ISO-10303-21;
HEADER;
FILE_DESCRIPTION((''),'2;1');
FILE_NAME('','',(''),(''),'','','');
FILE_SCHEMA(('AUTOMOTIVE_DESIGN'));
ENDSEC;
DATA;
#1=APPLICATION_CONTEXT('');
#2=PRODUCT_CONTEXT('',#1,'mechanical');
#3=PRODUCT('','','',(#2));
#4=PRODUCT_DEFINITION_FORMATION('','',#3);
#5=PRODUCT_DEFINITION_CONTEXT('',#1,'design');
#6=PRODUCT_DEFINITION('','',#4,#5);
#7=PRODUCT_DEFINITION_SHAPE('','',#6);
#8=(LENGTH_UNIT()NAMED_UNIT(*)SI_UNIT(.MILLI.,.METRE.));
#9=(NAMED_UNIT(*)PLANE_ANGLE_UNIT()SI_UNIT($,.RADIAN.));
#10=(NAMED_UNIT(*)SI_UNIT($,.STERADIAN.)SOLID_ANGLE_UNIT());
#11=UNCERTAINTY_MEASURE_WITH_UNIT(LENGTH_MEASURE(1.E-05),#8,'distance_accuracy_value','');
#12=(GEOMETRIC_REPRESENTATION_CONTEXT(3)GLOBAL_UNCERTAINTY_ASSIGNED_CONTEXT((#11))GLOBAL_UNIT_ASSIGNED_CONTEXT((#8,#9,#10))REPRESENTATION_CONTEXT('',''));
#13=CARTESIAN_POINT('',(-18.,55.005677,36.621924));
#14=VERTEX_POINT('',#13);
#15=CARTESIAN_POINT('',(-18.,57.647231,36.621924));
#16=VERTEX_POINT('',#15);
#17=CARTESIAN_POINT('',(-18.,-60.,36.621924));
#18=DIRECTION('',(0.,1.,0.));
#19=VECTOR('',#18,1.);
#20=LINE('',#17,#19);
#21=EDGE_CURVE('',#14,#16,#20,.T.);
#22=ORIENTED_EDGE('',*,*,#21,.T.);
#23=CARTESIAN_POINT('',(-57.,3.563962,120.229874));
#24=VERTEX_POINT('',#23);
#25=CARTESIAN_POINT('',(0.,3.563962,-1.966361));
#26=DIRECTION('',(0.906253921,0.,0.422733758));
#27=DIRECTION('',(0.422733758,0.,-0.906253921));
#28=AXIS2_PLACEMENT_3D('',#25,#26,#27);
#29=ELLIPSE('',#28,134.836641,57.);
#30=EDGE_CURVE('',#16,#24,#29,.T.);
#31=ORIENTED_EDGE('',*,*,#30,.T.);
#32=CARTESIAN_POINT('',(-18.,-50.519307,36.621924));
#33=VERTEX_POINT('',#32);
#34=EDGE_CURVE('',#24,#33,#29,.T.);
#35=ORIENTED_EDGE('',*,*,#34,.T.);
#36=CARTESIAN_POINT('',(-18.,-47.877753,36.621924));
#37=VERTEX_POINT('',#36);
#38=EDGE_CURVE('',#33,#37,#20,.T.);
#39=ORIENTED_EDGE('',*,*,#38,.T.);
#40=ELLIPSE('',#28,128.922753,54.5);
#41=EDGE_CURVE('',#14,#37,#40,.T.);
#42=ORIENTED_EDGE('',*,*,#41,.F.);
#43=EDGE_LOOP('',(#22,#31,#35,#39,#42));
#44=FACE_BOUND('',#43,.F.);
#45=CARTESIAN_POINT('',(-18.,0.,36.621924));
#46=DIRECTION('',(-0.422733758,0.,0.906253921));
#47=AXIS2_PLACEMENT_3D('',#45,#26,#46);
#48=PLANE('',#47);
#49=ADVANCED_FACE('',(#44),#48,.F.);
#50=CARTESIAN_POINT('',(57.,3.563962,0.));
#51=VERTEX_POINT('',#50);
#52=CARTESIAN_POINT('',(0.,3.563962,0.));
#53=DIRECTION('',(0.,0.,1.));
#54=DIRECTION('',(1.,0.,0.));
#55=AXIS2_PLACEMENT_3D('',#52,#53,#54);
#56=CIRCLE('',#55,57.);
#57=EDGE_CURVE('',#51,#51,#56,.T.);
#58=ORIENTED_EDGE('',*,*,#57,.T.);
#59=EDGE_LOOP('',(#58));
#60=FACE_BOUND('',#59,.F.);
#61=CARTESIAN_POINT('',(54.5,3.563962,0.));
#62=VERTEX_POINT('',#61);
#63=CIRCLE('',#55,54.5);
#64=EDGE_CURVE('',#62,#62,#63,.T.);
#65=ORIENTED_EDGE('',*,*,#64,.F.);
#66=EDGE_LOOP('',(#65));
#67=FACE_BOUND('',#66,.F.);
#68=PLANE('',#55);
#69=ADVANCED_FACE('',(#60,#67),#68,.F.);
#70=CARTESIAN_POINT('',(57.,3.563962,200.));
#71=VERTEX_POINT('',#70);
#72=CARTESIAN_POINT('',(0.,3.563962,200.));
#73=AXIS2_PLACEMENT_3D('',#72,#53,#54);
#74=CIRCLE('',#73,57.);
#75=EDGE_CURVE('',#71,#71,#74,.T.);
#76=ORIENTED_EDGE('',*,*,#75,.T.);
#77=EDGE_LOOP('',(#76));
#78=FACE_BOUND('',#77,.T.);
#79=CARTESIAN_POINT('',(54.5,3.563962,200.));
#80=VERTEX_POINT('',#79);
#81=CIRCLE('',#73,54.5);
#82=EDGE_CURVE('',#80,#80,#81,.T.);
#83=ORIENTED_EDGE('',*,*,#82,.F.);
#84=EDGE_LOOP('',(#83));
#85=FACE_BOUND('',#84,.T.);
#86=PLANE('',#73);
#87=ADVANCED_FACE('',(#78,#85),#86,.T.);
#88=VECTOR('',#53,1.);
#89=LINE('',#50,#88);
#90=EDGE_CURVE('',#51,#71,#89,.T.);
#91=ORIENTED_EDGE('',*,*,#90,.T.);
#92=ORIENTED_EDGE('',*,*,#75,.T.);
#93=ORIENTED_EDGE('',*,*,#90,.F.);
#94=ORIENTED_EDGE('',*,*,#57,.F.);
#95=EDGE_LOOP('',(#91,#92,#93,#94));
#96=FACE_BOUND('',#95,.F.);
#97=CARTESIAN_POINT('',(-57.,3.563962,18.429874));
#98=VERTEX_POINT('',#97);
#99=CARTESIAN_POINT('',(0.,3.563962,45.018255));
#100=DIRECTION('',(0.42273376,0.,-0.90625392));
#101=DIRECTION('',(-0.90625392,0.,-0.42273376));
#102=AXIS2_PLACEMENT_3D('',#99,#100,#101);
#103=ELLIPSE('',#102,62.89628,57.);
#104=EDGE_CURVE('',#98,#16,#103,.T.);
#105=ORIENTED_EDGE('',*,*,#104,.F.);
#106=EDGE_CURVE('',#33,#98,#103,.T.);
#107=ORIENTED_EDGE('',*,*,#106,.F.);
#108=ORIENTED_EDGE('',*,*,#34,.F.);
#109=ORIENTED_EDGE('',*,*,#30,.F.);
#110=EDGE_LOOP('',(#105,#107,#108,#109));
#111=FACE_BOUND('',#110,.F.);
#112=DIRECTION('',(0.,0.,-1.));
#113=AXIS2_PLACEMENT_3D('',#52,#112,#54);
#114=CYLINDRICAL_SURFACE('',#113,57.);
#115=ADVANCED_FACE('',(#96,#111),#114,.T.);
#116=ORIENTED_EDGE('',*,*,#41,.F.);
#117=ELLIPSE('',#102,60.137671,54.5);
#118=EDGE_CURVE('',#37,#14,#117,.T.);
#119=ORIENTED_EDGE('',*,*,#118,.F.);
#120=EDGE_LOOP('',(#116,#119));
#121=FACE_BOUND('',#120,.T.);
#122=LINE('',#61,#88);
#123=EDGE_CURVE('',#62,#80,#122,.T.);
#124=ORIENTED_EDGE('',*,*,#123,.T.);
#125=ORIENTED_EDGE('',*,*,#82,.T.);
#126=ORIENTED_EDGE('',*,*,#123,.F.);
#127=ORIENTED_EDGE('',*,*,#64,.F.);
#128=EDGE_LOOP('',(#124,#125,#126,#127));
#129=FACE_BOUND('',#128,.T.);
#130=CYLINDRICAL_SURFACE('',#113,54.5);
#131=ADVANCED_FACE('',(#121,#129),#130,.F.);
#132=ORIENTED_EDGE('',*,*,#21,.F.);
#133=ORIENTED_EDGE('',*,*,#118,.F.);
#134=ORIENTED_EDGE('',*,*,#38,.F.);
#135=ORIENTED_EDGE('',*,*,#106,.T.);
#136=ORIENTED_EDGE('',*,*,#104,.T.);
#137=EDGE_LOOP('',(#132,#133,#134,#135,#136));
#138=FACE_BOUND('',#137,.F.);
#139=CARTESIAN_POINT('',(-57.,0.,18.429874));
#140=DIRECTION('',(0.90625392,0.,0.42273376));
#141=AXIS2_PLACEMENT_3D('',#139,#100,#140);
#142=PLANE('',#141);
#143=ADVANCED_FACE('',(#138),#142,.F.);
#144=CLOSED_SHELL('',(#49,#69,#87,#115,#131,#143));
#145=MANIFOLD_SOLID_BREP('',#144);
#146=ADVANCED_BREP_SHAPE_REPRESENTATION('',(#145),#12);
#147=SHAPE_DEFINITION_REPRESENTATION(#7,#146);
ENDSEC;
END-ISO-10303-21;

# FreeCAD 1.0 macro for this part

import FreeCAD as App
import Part
import Sketcher

V = App.Vector
Q = App.Units.Quantity


def faces_at(feature, points):
    """Names of the faces that lie closest to the given points."""
    faces = feature.Shape.Faces
    near = lambda p: min(range(len(faces)), key=lambda i: faces[i].distToShape(Part.Vertex(*p))[0])
    return sorted({f"Face{near(p) + 1}" for p in points})


def add_polygon(sketch, points):
    """Adds a closed chain of lines whose ends are joined by coincident constraints."""
    first, n = sketch.GeometryCount, len(points)
    for a, b in zip(points, points[1:] + points[:1]):
        sketch.addGeometry(Part.LineSegment(App.Vector(*a, 0), App.Vector(*b, 0)), False)
    for i in range(n):
        sketch.addConstraint(Sketcher.Constraint("Coincident", first + i, 2, first + (i + 1) % n, 1))

doc = App.newDocument("Part")
body = doc.addObject("PartDesign::Body", "Body")

sketch1 = body.newObject("Sketcher::SketchObject", "Sketch")
sketch1.AttachmentSupport = (doc.getObject("XY_Plane"), [""])
sketch1.MapMode = "FlatFace"
sketch1.addGeometry(Part.Circle(V(0, 4, 0), V(0, 0, 1), 57), False)
sketch1.addConstraint([
    Sketcher.Constraint("PointOnObject", 0, 3, -2),
    Sketcher.Constraint("Diameter", 0, Q("114 mm")),
    Sketcher.Constraint("DistanceY", -1, 1, 0, 3, Q("3.563962 mm")),
])
pad1 = body.newObject("PartDesign::Pad", "Pad")
pad1.Profile = sketch1
pad1.Length = 200
doc.recompute()

thickness = body.newObject("PartDesign::Thickness", "Thickness")
thickness.Base = (pad1, faces_at(pad1, [(0, 3.564, 0), (0, 3.564, 200)]))
thickness.Value = 2.5
thickness.Reversed = True
thickness.Join = "Arc"

sketch2 = body.newObject("Sketcher::SketchObject", "Sketch001")
sketch2.AttachmentSupport = (doc.getObject("XZ_Plane"), [""])
sketch2.MapMode = "FlatFace"
add_polygon(sketch2, [(-57, 120), (-57, 18), (-18, 37)])
sketch2.addConstraint([
    Sketcher.Constraint("Vertical", 0),
    Sketcher.Constraint("Perpendicular", 1, 2),
    Sketcher.Constraint("DistanceY", 0, 2, 0, 1, Q("101.8 mm")),
    Sketcher.Constraint("DistanceX", 0, 2, -1, 1, Q("57 mm")),
    Sketcher.Constraint("DistanceX", 1, 2, -1, 1, Q("18 mm")),
    Sketcher.Constraint("DistanceY", -1, 1, 0, 2, Q("18.429874 mm")),
])
pocket1 = body.newObject("PartDesign::Pocket", "Pocket")
pocket1.Profile = sketch2
pocket1.Length = 120
pocket1.Midplane = True

doc.recompute()
